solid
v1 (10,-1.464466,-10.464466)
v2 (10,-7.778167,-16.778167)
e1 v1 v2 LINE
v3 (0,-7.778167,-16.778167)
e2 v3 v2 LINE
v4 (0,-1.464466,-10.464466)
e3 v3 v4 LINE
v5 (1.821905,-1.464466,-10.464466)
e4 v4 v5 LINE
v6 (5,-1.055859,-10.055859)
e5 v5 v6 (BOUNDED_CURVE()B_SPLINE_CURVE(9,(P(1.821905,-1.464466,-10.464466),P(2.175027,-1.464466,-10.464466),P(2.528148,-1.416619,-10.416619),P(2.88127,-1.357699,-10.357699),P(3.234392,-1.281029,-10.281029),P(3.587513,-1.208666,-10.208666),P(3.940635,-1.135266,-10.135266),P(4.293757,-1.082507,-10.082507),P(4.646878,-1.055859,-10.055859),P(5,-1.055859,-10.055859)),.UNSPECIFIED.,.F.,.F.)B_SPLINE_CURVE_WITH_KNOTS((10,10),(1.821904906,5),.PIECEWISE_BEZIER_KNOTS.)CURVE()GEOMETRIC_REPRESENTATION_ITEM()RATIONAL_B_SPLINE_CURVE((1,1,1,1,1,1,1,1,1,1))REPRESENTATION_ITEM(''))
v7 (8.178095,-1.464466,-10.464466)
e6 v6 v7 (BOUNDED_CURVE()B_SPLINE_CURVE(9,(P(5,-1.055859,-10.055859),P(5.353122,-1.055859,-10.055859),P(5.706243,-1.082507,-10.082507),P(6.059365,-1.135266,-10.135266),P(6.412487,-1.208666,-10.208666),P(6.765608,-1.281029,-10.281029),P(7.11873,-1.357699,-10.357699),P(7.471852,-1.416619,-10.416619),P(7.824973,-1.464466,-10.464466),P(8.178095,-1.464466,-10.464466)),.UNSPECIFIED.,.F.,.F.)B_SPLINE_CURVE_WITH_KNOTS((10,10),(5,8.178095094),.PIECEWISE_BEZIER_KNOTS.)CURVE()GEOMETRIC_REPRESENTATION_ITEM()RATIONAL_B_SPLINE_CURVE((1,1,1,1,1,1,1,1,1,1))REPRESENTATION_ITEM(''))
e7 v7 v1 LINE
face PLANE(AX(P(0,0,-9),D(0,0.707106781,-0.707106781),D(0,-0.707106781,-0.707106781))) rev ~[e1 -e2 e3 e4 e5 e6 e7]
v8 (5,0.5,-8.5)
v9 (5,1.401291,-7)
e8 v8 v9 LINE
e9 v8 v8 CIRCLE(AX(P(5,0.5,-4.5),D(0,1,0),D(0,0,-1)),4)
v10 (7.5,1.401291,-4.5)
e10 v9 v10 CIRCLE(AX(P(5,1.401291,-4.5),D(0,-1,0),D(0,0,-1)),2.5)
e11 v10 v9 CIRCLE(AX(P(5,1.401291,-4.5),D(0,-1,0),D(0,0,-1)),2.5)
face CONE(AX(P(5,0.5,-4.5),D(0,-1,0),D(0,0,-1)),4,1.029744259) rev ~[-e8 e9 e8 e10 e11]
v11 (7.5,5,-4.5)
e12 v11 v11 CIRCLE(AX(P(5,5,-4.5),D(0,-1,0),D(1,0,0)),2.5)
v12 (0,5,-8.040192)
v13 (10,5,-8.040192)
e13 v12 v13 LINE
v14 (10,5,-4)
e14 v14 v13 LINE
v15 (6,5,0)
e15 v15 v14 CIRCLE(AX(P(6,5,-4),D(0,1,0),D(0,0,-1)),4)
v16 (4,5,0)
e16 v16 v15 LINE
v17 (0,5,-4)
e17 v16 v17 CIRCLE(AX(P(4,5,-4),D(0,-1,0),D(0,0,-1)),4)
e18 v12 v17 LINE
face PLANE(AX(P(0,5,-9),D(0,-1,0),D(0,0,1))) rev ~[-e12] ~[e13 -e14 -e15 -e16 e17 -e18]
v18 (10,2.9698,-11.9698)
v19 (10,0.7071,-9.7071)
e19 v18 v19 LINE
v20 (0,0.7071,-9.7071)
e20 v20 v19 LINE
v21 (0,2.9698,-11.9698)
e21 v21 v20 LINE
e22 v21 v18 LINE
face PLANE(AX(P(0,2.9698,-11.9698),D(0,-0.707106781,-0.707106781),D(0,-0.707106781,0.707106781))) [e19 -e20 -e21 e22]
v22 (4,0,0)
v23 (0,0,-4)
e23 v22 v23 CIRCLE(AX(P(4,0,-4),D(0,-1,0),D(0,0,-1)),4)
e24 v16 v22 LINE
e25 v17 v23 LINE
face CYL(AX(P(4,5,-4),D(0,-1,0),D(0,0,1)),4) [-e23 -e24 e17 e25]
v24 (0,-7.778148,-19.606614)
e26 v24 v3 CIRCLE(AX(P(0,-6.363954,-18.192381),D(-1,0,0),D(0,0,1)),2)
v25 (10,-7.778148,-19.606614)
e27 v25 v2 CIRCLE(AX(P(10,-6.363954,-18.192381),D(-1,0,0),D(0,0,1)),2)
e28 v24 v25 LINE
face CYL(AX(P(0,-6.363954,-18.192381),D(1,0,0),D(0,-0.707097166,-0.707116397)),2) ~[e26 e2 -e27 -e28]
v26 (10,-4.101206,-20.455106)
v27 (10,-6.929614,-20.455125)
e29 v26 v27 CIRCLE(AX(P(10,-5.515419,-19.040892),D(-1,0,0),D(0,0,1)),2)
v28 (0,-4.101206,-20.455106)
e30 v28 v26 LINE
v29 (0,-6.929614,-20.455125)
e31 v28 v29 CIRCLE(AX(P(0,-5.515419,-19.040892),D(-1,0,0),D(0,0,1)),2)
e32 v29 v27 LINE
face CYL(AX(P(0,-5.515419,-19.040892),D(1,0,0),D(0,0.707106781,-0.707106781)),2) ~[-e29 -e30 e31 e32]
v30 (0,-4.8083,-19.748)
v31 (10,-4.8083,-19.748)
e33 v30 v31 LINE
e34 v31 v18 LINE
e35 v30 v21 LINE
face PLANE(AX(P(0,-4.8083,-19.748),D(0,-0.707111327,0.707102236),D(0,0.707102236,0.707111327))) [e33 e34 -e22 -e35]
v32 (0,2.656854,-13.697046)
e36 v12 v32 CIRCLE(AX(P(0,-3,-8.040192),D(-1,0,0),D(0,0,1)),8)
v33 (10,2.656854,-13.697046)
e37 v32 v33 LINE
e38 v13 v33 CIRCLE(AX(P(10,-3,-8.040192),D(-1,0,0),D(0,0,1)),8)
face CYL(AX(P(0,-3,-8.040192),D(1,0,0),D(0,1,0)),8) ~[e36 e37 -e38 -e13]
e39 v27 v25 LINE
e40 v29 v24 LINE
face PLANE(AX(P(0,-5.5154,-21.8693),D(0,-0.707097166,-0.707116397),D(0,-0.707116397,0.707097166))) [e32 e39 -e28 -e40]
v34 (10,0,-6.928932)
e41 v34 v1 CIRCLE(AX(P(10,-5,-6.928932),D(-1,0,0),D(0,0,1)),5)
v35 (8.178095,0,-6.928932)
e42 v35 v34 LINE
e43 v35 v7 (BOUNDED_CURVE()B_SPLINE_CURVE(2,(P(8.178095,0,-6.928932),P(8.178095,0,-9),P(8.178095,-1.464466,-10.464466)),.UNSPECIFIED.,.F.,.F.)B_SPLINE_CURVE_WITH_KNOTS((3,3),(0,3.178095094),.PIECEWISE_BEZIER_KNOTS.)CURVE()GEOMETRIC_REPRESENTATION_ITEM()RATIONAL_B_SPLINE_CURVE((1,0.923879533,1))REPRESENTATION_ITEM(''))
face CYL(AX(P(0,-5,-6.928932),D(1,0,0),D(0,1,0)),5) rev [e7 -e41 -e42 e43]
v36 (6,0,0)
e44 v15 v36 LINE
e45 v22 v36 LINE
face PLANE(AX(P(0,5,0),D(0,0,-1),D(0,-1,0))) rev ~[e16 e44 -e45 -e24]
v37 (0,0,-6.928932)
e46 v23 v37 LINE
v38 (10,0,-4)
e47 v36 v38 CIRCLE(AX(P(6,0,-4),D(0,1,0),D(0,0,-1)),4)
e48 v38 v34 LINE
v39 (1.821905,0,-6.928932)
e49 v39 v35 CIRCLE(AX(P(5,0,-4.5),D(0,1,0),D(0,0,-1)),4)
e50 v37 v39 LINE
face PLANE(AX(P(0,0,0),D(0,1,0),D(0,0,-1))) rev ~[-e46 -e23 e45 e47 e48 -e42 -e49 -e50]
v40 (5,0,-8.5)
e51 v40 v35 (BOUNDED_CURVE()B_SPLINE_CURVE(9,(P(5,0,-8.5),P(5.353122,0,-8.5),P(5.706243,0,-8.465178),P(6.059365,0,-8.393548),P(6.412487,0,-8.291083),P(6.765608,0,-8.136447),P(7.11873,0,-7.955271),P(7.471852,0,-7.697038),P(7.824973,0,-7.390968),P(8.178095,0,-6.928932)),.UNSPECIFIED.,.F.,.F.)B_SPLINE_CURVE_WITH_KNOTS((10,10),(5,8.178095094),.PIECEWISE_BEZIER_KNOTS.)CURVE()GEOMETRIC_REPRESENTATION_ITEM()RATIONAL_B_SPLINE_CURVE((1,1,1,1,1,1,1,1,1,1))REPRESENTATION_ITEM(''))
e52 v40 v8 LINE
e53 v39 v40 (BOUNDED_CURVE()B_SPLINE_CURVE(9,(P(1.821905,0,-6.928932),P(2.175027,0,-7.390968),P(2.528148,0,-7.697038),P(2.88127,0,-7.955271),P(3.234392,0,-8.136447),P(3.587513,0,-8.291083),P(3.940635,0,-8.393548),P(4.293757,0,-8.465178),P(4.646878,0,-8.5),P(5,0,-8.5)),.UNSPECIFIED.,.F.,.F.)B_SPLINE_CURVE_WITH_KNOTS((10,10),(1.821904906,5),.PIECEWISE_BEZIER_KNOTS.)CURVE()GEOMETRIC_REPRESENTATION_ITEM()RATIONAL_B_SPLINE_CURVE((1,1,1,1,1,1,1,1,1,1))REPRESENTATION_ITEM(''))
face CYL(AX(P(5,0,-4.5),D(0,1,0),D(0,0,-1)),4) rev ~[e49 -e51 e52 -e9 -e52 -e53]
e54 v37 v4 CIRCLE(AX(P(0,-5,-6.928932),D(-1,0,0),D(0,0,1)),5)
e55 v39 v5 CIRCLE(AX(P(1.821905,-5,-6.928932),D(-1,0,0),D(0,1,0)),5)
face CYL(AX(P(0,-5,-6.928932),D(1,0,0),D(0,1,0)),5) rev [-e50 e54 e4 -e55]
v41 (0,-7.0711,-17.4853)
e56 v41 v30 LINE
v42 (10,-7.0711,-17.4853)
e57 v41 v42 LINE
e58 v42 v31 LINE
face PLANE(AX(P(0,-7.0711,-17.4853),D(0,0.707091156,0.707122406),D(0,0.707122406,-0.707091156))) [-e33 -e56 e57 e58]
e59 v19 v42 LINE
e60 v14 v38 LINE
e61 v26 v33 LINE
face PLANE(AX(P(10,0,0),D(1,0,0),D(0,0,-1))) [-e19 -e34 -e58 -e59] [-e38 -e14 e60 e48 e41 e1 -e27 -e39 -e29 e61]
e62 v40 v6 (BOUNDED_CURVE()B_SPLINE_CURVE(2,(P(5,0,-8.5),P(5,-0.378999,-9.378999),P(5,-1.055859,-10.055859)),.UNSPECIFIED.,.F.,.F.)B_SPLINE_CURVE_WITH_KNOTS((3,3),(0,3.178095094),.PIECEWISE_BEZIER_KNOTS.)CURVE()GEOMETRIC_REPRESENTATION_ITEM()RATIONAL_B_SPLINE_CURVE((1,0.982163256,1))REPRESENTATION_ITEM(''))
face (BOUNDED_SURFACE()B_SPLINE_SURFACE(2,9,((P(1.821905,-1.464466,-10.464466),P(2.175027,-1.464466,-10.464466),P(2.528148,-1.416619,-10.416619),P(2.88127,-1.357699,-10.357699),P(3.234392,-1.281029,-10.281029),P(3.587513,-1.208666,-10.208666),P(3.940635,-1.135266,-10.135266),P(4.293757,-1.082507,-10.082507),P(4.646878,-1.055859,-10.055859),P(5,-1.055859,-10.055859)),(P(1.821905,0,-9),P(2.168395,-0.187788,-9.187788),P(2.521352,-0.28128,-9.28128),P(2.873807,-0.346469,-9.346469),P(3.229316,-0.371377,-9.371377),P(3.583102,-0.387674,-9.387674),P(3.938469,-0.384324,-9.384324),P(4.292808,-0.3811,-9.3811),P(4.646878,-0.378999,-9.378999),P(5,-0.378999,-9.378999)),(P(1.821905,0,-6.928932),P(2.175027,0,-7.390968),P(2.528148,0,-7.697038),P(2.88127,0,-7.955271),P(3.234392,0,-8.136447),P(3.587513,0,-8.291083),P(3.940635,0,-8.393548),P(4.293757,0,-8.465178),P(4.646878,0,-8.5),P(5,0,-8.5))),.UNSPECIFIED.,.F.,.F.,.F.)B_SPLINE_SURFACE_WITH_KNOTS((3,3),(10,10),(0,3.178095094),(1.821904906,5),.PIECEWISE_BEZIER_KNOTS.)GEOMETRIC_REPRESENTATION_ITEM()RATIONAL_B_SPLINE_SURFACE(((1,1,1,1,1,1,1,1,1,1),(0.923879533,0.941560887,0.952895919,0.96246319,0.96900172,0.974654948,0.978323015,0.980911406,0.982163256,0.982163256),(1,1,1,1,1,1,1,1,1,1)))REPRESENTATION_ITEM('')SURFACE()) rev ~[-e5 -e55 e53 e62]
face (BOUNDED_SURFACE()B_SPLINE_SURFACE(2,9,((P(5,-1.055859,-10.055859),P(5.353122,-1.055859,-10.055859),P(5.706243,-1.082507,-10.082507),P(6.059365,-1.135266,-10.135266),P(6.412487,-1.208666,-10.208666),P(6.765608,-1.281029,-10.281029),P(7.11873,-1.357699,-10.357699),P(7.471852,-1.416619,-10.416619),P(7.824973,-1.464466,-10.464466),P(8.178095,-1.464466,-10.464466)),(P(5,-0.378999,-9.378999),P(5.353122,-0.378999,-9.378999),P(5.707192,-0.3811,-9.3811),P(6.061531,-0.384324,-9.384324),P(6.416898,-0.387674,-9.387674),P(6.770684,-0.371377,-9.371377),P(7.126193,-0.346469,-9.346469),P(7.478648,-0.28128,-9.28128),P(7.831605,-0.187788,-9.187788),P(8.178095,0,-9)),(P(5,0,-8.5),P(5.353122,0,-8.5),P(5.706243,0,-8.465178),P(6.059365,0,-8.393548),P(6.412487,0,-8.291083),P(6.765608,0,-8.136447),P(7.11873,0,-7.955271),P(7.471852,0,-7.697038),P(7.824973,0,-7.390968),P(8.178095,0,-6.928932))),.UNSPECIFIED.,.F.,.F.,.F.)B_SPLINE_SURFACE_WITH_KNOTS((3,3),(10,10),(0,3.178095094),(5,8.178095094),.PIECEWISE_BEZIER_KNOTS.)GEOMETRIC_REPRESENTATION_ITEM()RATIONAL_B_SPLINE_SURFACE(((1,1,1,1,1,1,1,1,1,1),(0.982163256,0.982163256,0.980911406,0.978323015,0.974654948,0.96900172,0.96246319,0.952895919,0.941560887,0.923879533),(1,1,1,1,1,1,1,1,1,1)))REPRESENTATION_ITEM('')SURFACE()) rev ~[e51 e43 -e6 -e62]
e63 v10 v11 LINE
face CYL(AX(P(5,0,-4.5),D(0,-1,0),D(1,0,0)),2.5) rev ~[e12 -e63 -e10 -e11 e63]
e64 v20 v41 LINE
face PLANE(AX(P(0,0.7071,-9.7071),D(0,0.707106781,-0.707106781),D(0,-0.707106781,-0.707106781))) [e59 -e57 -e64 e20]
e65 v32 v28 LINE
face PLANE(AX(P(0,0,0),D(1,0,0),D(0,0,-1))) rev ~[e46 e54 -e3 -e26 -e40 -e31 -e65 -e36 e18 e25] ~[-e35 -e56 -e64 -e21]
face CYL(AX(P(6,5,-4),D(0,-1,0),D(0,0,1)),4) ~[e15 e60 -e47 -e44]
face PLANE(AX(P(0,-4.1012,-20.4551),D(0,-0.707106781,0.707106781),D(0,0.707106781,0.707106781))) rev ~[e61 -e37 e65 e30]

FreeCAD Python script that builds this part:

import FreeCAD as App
import Part
import Sketcher
from FreeCAD import Vector
Q = App.Units.Quantity


def edges_at(feature, points):
    """Names of the edges that pass closest to the given points."""
    edges = feature.Shape.Edges
    near = lambda p: min(range(len(edges)), key=lambda i: edges[i].distToShape(Part.Vertex(*p))[0])
    return sorted({f"Edge{near(p) + 1}" for p in points})


def add_polygon(sketch, points):
    """Adds a closed chain of lines whose ends are joined by coincident constraints."""
    first, n = sketch.GeometryCount, len(points)
    for a, b in zip(points, points[1:] + points[:1]):
        sketch.addGeometry(Part.LineSegment(App.Vector(*a, 0), App.Vector(*b, 0)), False)
    for i in range(n):
        sketch.addConstraint(Sketcher.Constraint("Coincident", first + i, 2, first + (i + 1) % n, 1))

doc = App.newDocument("Part")
body = doc.addObject("PartDesign::Body", "Body")

# Sketch on YZ plane
sketch1 = body.newObject("Sketcher::SketchObject", "Sketch")
sketch1.AttachmentSupport = (doc.getObject("YZ_Plane"), [""])
sketch1.MapMode = "FlatFace"
add_polygon(sketch1, [(5, 0), (0, 0), (0, -9), (-9.2, -18.2), (-5.5, -21.9), (5, -11.4)])  # lines 0-5
add_polygon(sketch1, [(3, -12), (-4.8, -19.7), (-7.1, -17.5), (0.7, -9.7)])  # lines 6-9
sketch1.addConstraint(Sketcher.Constraint("Horizontal", 0))
sketch1.addConstraint(Sketcher.Constraint("Vertical", 1))
sketch1.addConstraint(Sketcher.Constraint("Vertical", 5))
sketch1.addConstraint(Sketcher.Constraint("Coincident", 0, 2, -1, 1))
sketch1.addConstraint(Sketcher.Constraint("Perpendicular", 2, 3))
sketch1.addConstraint(Sketcher.Constraint("Perpendicular", 3, 4))
sketch1.addConstraint(Sketcher.Constraint("Parallel", 4, 6))
sketch1.addConstraint(Sketcher.Constraint("Perpendicular", 6, 7))
sketch1.addConstraint(Sketcher.Constraint("Perpendicular", 7, 8))
sketch1.addConstraint(Sketcher.Constraint("Perpendicular", 8, 9))
sketch1.addConstraint(Sketcher.Constraint("DistanceX", 0, 2, 0, 1, 5.0))
sketch1.addConstraint(Sketcher.Constraint("DistanceY", 1, 2, 1, 1, 9.0))
sketch1.addConstraint(Sketcher.Constraint("Angle", 4, Q("45 deg")))
sketch1.addConstraint(Sketcher.Constraint("Distance", 6, 11.0))
sketch1.addConstraint(Sketcher.Constraint("Distance", 7, 3.2))
sketch1.addConstraint(Sketcher.Constraint("Distance", 2, 13.0))
sketch1.addConstraint(Sketcher.Constraint("Distance", 3, 5.2))
sketch1.addConstraint(Sketcher.Constraint("DistanceY", 6, 2, -1, 1, 19.748))
sketch1.addConstraint(Sketcher.Constraint("DistanceX", 7, 2, -1, 1, 7.071))
pad1 = body.newObject("PartDesign::Pad", "Pad")
pad1.Profile = sketch1
pad1.Length = 10

# Sketch on XZ plane
sketch2 = body.newObject("Sketcher::SketchObject", "Sketch001")
sketch2.AttachmentSupport = (doc.getObject("XZ_Plane"), [""])
sketch2.MapMode = "FlatFace"
sketch2.addGeometry(Part.Circle(Vector(5, -4.5, 0), Vector(0, 0, 1), 2.5), False)
sketch2.addConstraint(Sketcher.Constraint("Diameter", 0, 5.0))
sketch2.addConstraint(Sketcher.Constraint("DistanceX", -1, 1, 0, 3, 5.0))
sketch2.addConstraint(Sketcher.Constraint("DistanceY", 0, 3, -1, 1, 4.5))
pocket1 = body.newObject("PartDesign::Pocket", "Pocket")
pocket1.Profile = sketch2
pocket1.Length = 5

# Sketch on XZ plane
sketch3 = body.newObject("Sketcher::SketchObject", "Sketch002")
sketch3.AttachmentSupport = (doc.getObject("XZ_Plane"), [""])
sketch3.MapMode = "FlatFace"
sketch3.addGeometry(Part.Circle(Vector(5, -4.5, 0), Vector(0, 0, 1), 4), False)
sketch3.addConstraint(Sketcher.Constraint("Diameter", 0, 8.0))
sketch3.addConstraint(Sketcher.Constraint("DistanceX", -1, 1, 0, 3, 5.0))
sketch3.addConstraint(Sketcher.Constraint("DistanceY", 0, 3, -1, 1, 4.5))
doc.recompute()
hole = body.newObject("PartDesign::Hole", "Hole")
hole.Profile = sketch3
hole.ThreadType = "None"
hole.Diameter = 8
hole.DepthType = "Dimension"
hole.Depth = 0.5
hole.DrillPoint = "Angled"
hole.DrillPointAngle = 118
doc.recompute()

fillet = body.newObject("PartDesign::Fillet", "Fillet")
fillet.Base = (hole, edges_at(hole, [(10, 2.5, 0), (0, 2.5, 0)]))
fillet.Radius = 4
doc.recompute()

fillet2 = body.newObject("PartDesign::Fillet", "Fillet001")
fillet2.Base = (fillet, edges_at(fillet, [(5, 0, -9)]))
fillet2.Radius = 5
doc.recompute()

fillet3 = body.newObject("PartDesign::Fillet", "Fillet002")
fillet3.Base = (fillet2, edges_at(fillet2, [(5, 5, -11.354)]))
fillet3.Radius = 8
doc.recompute()

fillet4 = body.newObject("PartDesign::Fillet", "Fillet003")
fillet4.Base = (fillet3, edges_at(fillet3, [(5, -9.192, -18.192), (5, -5.515, -21.869)]))
fillet4.Radius = 2

doc.recompute()
